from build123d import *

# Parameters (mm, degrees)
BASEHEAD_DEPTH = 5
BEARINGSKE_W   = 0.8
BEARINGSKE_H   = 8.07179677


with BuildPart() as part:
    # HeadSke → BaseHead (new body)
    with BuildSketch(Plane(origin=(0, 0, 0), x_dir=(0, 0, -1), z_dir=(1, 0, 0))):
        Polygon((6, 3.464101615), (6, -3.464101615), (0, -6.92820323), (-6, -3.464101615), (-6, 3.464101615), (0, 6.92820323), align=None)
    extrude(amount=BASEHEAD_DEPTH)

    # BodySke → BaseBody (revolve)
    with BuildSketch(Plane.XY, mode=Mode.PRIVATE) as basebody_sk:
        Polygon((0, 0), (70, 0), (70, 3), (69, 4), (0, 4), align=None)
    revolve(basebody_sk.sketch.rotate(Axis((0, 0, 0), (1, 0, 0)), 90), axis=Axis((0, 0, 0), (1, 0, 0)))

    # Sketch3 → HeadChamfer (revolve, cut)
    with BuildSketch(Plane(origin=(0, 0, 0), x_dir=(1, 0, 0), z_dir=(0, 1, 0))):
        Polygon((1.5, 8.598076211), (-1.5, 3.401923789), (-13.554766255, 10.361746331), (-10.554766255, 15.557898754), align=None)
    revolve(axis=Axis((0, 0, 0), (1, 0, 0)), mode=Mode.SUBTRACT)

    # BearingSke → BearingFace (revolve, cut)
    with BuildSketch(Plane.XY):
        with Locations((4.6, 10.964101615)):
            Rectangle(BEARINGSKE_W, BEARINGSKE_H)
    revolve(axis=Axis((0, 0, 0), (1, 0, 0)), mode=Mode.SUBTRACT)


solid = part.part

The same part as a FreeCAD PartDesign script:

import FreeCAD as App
import Part
import Sketcher
Q = App.Units.Quantity

doc = App.newDocument("Part")
params = doc.addObject("Spreadsheet::Sheet", "Params")
for row, (alias, value) in enumerate([
    ("pad1_length", "5 mm"),
    ("sketch2_width", "70 mm"),
    ("sketch2_width2", "69 mm"),
    ("sketch2_height", "3 mm"),
    ("sketch2_height2", "4 mm"),
    ("revolution_angle", "360 deg"),
    ("sketch3_length", "6 mm"),
    ("groove_angle", "360 deg"),
    ("sketch4_width", "0.8 mm"),
    ("groove2_angle", "360 deg"),
], start=1):
    params.set(f"A{row}", alias)
    params.set(f"B{row}", "=" + value)
    params.setAlias(f"B{row}", alias)

body = doc.addObject("PartDesign::Body", "Body")

# Sketch on YZ plane
sketch1 = body.newObject("Sketcher::SketchObject", "Sketch")
sketch1.AttachmentSupport = (doc.getObject("YZ_Plane"), [""])
sketch1.MapMode = "FlatFace"
sketch1.addGeometry([
    Part.LineSegment(App.Vector(-3, -6, 0), App.Vector(3, -6, 0)),  # 0
    Part.LineSegment(App.Vector(3, -6, 0), App.Vector(7, 0, 0)),  # 1
    Part.LineSegment(App.Vector(7, 0, 0), App.Vector(3, 6, 0)),  # 2
    Part.LineSegment(App.Vector(3, 6, 0), App.Vector(-3, 6, 0)),  # 3
    Part.LineSegment(App.Vector(-3, 6, 0), App.Vector(-7, 0, 0)),  # 4
    Part.LineSegment(App.Vector(-7, 0, 0), App.Vector(-3, -6, 0)),  # 5
], False)
sketch1.addConstraint([
    Sketcher.Constraint("Coincident", 0, 2, 1, 1),
    Sketcher.Constraint("Coincident", 1, 2, 2, 1),
    Sketcher.Constraint("Coincident", 2, 2, 3, 1),
    Sketcher.Constraint("Coincident", 3, 2, 4, 1),
    Sketcher.Constraint("Coincident", 4, 2, 5, 1),
    Sketcher.Constraint("Coincident", 5, 2, 0, 1),
    Sketcher.Constraint("Horizontal", 0),
    Sketcher.Constraint("Horizontal", 3),
    Sketcher.Constraint("Symmetric", 0, 2, 3, 2, -1, 1),
    Sketcher.Constraint("Symmetric", 1, 2, 4, 2, -1, 1),
    Sketcher.Constraint("PointOnObject", 1, 2, -1),
    Sketcher.Constraint("Parallel", 2, 5),
    Sketcher.Constraint("Vertical", 0, 2, 2, 2),
    Sketcher.Constraint("Angle", 1, Q("60 deg")),
    Sketcher.Constraint("DistanceY", 0, 2, -1, 1, Q("6 mm")),
    Sketcher.Constraint("DistanceX", -1, 1, 0, 2, Q("3.464102 mm")),
])
pad1 = body.newObject("PartDesign::Pad", "Pad")
pad1.Profile = sketch1
pad1.setExpression("Length", "Params.pad1_length")

# Sketch on XY plane
sketch2 = body.newObject("Sketcher::SketchObject", "Sketch001")
sketch2.AttachmentSupport = (doc.getObject("XY_Plane"), [""])
sketch2.MapMode = "FlatFace"
sketch2.addGeometry([
    Part.LineSegment(App.Vector(0, 0, 0), App.Vector(70, 0, 0)),  # 0
    Part.LineSegment(App.Vector(70, 0, 0), App.Vector(70, 3, 0)),  # 1
    Part.LineSegment(App.Vector(70, 3, 0), App.Vector(69, 4, 0)),  # 2
    Part.LineSegment(App.Vector(69, 4, 0), App.Vector(0, 4, 0)),  # 3
    Part.LineSegment(App.Vector(0, 4, 0), App.Vector(0, 0, 0)),  # 4
], False)
sketch2.addConstraint([
    Sketcher.Constraint("Coincident", 0, 2, 1, 1),
    Sketcher.Constraint("Coincident", 1, 2, 2, 1),
    Sketcher.Constraint("Coincident", 2, 2, 3, 1),
    Sketcher.Constraint("Coincident", 3, 2, 4, 1),
    Sketcher.Constraint("Coincident", 4, 2, 0, 1),
    Sketcher.Constraint("Horizontal", 0),
    Sketcher.Constraint("Vertical", 1),
    Sketcher.Constraint("Horizontal", 3),
    Sketcher.Constraint("Vertical", 4),
    Sketcher.Constraint("Coincident", 4, 2, -1, 1),
    Sketcher.Constraint("DistanceX", 0, 1, 0, 2, Q("70 mm")),
    Sketcher.Constraint("DistanceX", 3, 2, 3, 1, Q("69 mm")),
    Sketcher.Constraint("DistanceY", 1, 1, 1, 2, Q("3 mm")),
    Sketcher.Constraint("DistanceY", 4, 2, 4, 1, Q("4 mm")),
])
sketch2.setExpression("Constraints[10]", "Params.sketch2_width")
sketch2.setExpression("Constraints[11]", "Params.sketch2_width2")
sketch2.setExpression("Constraints[12]", "Params.sketch2_height")
sketch2.setExpression("Constraints[13]", "Params.sketch2_height2")
revolution = body.newObject("PartDesign::Revolution", "Revolution")
revolution.Profile = sketch2
revolution.ReferenceAxis = (sketch2, ["H_Axis"])
revolution.setExpression("Angle", "Params.revolution_angle")

# Sketch on XZ plane
sketch3 = body.newObject("Sketcher::SketchObject", "Sketch002")
sketch3.AttachmentSupport = (doc.getObject("XZ_Plane"), [""])
sketch3.MapMode = "FlatFace"
sketch3.addGeometry([
    Part.LineSegment(App.Vector(-2, -3, 0), App.Vector(2, -9, 0)),
    Part.LineSegment(App.Vector(2, -9, 0), App.Vector(-11, -16, 0)),
    Part.LineSegment(App.Vector(-11, -16, 0), App.Vector(-14, -10, 0)),
    Part.LineSegment(App.Vector(-14, -10, 0), App.Vector(-2, -3, 0)),
], False)
sketch3.addConstraint([
    Sketcher.Constraint("Coincident", 0, 2, 1, 1),
    Sketcher.Constraint("Coincident", 1, 2, 2, 1),
    Sketcher.Constraint("Coincident", 2, 2, 3, 1),
    Sketcher.Constraint("Coincident", 3, 2, 0, 1),
    Sketcher.Constraint("Perpendicular", 0, 1),
    Sketcher.Constraint("Perpendicular", 1, 2),
    Sketcher.Constraint("Perpendicular", 2, 3),
    Sketcher.Constraint("Angle", 0, Q("-60 deg")),
    Sketcher.Constraint("Distance", 0, Q("6 mm")),
    Sketcher.Constraint("DistanceX", -1, 1, 0, 2, Q("1.5 mm")),
    Sketcher.Constraint("DistanceY", 1, 2, -1, 1, Q("15.557899 mm")),
    Sketcher.Constraint("DistanceY", 2, 2, 0, 2, Q("1.76367 mm")),
])
sketch3.setExpression("Constraints[8]", "Params.sketch3_length")
groove = body.newObject("PartDesign::Groove", "Groove")
groove.Profile = sketch3
groove.ReferenceAxis = (sketch3, ["H_Axis"])
groove.setExpression("Angle", "Params.groove_angle")

# Sketch on XY plane
sketch4 = body.newObject("Sketcher::SketchObject", "Sketch003")
sketch4.AttachmentSupport = (doc.getObject("XY_Plane"), [""])
sketch4.MapMode = "FlatFace"
sketch4.addGeometry([
    Part.LineSegment(App.Vector(4.2, 15, 0), App.Vector(4.2, 6.9, 0)),
    Part.LineSegment(App.Vector(4.2, 6.9, 0), App.Vector(5, 6.9, 0)),
    Part.LineSegment(App.Vector(5, 6.9, 0), App.Vector(5, 15, 0)),
    Part.LineSegment(App.Vector(5, 15, 0), App.Vector(4.2, 15, 0)),
], False)
sketch4.addConstraint([
    Sketcher.Constraint("Coincident", 0, 2, 1, 1),
    Sketcher.Constraint("Coincident", 1, 2, 2, 1),
    Sketcher.Constraint("Coincident", 2, 2, 3, 1),
    Sketcher.Constraint("Coincident", 3, 2, 0, 1),
    Sketcher.Constraint("Vertical", 0),
    Sketcher.Constraint("Horizontal", 1),
    Sketcher.Constraint("Vertical", 2),
    Sketcher.Constraint("Horizontal", 3),
    Sketcher.Constraint("DistanceX", 1, 1, 1, 2, Q("0.8 mm")),
    Sketcher.Constraint("DistanceX", -1, 1, 1, 2, Q("5 mm")),
    Sketcher.Constraint("DistanceY", -1, 1, 2, 2, Q("15 mm")),
    Sketcher.Constraint("DistanceY", 0, 2, 0, 1, Q("8.071797 mm")),
])
sketch4.setExpression("Constraints[8]", "Params.sketch4_width")
groove2 = body.newObject("PartDesign::Groove", "Groove001")
groove2.Profile = sketch4
groove2.ReferenceAxis = (sketch4, ["H_Axis"])
groove2.setExpression("Angle", "Params.groove2_angle")

doc.recompute()
